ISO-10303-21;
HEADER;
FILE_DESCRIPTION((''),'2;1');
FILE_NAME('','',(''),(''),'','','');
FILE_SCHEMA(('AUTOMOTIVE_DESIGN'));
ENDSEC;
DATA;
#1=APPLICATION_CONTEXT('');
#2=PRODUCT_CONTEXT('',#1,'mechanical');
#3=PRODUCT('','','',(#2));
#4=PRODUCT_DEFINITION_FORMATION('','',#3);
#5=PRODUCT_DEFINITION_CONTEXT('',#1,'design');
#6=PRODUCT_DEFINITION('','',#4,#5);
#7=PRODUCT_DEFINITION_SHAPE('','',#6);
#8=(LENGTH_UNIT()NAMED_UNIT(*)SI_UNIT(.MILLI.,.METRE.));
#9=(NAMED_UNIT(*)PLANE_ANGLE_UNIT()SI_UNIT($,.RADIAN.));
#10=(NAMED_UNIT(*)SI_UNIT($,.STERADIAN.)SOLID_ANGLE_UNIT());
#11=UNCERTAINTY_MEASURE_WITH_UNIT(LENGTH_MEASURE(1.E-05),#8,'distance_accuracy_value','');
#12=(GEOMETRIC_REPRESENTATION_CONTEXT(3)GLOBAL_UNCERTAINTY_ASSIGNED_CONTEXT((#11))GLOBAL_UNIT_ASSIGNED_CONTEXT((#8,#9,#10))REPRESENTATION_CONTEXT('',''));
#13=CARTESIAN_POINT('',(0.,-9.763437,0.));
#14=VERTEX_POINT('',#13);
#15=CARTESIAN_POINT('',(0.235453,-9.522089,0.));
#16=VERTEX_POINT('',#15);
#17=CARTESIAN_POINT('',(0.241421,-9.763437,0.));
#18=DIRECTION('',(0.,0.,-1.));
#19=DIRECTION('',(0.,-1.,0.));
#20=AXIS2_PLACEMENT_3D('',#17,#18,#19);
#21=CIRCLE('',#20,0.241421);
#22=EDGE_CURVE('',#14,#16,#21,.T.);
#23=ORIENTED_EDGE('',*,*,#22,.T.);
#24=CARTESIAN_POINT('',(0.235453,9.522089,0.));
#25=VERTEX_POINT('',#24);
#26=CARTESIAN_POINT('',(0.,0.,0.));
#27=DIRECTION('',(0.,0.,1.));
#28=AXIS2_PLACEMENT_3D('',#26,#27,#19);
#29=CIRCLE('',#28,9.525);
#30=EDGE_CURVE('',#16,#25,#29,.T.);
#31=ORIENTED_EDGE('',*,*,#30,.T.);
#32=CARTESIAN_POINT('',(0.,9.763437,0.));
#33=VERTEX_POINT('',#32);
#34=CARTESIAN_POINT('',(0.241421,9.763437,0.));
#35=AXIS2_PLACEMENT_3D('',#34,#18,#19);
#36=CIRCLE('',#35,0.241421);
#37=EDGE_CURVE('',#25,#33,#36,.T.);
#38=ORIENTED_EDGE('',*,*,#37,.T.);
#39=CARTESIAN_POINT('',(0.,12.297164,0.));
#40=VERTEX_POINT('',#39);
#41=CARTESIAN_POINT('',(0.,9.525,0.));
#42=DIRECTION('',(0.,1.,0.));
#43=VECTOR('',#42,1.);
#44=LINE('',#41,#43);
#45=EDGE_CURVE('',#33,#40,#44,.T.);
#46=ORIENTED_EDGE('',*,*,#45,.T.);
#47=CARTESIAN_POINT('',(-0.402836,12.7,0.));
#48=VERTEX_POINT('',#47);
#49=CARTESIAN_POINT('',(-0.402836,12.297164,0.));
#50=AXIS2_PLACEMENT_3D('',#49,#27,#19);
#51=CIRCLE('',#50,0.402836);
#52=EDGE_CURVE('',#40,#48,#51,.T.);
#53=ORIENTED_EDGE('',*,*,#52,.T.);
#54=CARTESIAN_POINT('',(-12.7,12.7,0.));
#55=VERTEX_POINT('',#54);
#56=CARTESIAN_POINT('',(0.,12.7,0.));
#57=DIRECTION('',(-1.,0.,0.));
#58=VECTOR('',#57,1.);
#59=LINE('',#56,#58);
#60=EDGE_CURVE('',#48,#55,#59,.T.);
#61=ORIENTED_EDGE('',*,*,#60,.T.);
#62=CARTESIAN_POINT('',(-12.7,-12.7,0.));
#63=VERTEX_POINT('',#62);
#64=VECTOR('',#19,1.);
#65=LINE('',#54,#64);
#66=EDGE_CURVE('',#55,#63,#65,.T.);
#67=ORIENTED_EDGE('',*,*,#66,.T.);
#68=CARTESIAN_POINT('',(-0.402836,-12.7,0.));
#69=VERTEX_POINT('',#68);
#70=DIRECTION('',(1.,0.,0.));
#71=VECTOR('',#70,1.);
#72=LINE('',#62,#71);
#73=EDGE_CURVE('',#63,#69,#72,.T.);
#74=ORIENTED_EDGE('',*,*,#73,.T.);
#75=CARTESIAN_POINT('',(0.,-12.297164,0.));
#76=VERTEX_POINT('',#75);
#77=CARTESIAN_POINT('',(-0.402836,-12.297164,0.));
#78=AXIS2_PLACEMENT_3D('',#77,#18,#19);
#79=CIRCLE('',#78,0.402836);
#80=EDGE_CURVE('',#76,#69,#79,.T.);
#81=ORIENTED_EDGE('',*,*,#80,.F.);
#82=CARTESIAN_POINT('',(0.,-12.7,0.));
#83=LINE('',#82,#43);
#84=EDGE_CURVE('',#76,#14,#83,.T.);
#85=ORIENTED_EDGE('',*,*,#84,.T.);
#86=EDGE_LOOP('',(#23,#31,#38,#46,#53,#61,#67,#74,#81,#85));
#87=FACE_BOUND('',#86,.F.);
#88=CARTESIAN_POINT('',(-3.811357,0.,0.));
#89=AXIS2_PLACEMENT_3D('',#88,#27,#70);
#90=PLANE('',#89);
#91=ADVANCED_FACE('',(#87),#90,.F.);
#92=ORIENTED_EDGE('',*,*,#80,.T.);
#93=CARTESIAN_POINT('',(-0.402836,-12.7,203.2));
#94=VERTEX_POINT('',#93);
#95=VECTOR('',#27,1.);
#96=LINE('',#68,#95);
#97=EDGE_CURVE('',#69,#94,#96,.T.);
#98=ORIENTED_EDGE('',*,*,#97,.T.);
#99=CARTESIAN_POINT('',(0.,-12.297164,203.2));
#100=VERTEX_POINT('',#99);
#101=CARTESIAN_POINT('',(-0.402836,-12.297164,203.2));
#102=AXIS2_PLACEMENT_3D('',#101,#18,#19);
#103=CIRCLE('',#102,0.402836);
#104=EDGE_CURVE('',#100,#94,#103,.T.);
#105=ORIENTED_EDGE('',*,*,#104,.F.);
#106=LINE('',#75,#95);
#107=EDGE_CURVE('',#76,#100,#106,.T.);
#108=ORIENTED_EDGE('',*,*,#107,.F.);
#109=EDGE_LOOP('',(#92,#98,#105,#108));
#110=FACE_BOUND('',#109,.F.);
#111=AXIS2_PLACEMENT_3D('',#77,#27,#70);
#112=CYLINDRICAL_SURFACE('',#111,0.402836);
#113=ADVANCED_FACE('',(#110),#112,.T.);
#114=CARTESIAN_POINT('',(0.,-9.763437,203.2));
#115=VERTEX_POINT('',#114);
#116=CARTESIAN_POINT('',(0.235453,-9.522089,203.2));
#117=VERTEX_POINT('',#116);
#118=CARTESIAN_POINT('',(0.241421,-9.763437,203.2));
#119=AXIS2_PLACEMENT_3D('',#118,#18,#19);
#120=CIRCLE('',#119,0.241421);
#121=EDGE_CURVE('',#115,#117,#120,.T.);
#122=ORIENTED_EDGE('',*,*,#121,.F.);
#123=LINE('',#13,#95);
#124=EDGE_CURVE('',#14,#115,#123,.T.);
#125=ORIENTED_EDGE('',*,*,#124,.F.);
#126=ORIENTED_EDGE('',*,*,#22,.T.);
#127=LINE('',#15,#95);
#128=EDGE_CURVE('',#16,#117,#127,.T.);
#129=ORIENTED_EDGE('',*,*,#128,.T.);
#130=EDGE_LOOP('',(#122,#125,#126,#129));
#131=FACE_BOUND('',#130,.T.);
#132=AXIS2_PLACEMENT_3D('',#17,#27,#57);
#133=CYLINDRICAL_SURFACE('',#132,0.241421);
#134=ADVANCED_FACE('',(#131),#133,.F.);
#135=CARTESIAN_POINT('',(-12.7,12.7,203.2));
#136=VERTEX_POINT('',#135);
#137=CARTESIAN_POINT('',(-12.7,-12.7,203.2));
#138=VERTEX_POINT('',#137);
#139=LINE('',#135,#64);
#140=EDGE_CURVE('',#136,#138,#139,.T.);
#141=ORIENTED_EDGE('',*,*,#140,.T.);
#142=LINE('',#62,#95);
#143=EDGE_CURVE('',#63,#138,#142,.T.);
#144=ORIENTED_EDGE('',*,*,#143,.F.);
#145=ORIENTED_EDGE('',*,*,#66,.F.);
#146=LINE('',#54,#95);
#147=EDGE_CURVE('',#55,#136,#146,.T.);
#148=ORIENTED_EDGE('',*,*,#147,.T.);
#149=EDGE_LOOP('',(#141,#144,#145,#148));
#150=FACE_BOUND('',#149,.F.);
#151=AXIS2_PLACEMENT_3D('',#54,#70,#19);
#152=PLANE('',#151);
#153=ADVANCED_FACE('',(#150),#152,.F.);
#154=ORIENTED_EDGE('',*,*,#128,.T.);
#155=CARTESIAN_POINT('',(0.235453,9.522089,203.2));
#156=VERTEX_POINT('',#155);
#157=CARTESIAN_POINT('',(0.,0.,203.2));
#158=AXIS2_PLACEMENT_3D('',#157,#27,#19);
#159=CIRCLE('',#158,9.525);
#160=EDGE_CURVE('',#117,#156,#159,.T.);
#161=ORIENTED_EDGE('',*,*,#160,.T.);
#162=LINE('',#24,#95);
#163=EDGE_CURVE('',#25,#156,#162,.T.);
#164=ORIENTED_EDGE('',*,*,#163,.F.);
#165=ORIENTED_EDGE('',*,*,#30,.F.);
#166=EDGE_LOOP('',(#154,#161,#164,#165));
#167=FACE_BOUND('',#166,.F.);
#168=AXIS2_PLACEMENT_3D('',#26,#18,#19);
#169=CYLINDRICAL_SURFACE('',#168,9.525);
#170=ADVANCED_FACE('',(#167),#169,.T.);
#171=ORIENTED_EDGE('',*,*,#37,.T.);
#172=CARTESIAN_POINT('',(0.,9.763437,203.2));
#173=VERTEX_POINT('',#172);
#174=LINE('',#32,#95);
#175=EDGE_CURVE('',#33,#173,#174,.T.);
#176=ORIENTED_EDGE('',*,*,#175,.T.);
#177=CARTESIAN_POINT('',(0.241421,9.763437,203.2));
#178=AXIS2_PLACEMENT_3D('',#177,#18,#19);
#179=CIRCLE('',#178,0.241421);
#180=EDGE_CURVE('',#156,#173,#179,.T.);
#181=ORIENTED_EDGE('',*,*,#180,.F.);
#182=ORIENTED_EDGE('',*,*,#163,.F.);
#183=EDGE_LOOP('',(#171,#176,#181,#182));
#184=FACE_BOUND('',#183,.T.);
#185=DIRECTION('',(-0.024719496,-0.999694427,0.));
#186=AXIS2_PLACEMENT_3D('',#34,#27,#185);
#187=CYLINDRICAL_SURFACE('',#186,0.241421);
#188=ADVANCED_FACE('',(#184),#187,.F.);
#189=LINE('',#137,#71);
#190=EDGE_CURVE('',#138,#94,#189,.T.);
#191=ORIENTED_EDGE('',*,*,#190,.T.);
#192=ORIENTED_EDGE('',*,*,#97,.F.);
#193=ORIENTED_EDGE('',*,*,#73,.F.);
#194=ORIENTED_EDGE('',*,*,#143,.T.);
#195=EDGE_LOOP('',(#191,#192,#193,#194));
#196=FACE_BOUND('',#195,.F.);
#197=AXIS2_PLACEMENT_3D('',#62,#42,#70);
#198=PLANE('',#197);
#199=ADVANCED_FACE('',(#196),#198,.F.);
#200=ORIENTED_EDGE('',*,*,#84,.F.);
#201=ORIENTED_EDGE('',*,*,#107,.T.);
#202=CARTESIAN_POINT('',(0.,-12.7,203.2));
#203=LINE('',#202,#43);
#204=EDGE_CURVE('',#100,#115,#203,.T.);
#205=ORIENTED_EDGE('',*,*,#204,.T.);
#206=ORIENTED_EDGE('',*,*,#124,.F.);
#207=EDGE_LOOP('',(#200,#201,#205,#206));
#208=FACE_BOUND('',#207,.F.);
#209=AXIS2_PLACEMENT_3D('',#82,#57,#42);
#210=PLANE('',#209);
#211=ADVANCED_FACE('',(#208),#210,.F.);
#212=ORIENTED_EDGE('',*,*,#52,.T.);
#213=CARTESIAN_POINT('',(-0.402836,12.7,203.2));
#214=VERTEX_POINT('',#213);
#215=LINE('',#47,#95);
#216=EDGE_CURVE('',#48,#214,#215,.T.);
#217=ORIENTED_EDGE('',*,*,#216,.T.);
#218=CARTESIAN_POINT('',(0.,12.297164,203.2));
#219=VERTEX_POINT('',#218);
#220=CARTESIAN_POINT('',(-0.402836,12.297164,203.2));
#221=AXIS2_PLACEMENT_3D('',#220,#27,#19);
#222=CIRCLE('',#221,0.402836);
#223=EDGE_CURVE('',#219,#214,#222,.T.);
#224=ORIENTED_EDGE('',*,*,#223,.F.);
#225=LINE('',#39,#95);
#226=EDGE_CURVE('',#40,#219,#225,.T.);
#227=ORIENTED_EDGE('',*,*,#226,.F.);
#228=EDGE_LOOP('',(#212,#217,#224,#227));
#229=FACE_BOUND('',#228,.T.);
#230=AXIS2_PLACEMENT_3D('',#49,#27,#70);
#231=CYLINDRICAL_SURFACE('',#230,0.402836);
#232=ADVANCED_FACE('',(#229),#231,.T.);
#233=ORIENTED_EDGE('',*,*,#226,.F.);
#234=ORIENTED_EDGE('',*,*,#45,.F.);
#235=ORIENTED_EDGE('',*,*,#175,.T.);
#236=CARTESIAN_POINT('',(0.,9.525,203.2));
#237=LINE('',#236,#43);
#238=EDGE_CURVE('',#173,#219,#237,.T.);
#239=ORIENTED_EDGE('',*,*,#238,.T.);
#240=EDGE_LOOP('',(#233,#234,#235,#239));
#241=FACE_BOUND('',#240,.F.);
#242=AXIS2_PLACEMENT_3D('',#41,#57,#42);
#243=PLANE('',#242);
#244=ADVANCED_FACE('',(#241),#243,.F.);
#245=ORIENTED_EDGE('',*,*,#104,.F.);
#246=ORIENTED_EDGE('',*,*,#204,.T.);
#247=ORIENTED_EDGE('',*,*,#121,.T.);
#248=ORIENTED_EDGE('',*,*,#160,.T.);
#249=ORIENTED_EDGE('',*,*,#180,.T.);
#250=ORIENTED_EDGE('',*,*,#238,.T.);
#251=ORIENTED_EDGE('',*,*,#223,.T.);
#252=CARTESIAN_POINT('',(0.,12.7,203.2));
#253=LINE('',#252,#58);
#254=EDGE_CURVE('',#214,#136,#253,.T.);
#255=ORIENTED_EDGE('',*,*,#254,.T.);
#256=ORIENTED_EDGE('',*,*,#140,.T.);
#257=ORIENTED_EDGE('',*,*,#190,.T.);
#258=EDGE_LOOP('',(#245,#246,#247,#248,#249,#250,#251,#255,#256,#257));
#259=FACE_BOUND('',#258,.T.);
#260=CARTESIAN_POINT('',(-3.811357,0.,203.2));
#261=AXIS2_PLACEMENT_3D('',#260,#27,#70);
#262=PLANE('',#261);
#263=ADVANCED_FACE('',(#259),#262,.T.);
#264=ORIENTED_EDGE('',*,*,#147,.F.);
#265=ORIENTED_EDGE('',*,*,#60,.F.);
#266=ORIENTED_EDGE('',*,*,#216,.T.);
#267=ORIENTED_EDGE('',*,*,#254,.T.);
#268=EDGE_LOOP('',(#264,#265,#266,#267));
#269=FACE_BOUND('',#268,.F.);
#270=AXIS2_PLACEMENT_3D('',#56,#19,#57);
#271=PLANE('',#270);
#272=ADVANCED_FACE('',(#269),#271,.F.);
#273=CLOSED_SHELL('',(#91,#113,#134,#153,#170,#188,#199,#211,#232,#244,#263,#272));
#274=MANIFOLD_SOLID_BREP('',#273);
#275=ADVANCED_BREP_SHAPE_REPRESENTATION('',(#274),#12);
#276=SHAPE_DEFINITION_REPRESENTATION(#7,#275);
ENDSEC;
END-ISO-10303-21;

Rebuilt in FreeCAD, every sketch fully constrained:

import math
import FreeCAD as App
import Part
import Sketcher
from FreeCAD import Vector
Q = App.Units.Quantity


def edges_at(feature, points):
    """Names of the edges that pass closest to the given points."""
    edges = feature.Shape.Edges
    near = lambda p: min(range(len(edges)), key=lambda i: edges[i].distToShape(Part.Vertex(*p))[0])
    return sorted({f"Edge{near(p) + 1}" for p in points})

doc = App.newDocument("Part")
params = doc.addObject("Spreadsheet::Sheet", "Params")
for row, (alias, value) in enumerate([
    ("sketch1_height", "1 in"),
    ("sketch1_width", "0.5 in"),
    ("sketch1_radius", "0.375 in"),
    ("pad1_length", "8 in"),
    ("fillet_radius", "0.402836 mm"),
    ("fillet2_radius", "0.241421 mm"),
], start=1):
    params.set(f"A{row}", alias)
    params.set(f"B{row}", "=" + value)
    params.setAlias(f"B{row}", alias)

body = doc.addObject("PartDesign::Body", "Body")

# Sketch on XY plane
sketch1 = doc.addObject("Sketcher::SketchObject", "Sketch")
body.addObject(sketch1)
sketch1.AttachmentSupport = (doc.XY_Plane, [""])
sketch1.MapMode = "FlatFace"
sketch1.addGeometry(Part.LineSegment(Vector(0, -12.7, 0), Vector(0, -9.5, 0)), False)
sketch1.addGeometry(Part.ArcOfCircle(Part.Circle(Vector(0, 0, 0), Vector(0, 0, 1), 9.5), math.radians(-90), math.radians(90)), False)
sketch1.addGeometry(Part.LineSegment(Vector(0, 9.5, 0), Vector(0, 12.7, 0)), False)
sketch1.addGeometry(Part.LineSegment(Vector(0, 12.7, 0), Vector(-12.7, 12.7, 0)), False)
sketch1.addGeometry(Part.LineSegment(Vector(-12.7, 12.7, 0), Vector(-12.7, -12.7, 0)), False)
sketch1.addGeometry(Part.LineSegment(Vector(-12.7, -12.7, 0), Vector(0, -12.7, 0)), False)
sketch1.addConstraint(Sketcher.Constraint("Coincident", 0, 2, 1, 1))
sketch1.addConstraint(Sketcher.Constraint("Coincident", 1, 2, 2, 1))
sketch1.addConstraint(Sketcher.Constraint("Coincident", 2, 2, 3, 1))
sketch1.addConstraint(Sketcher.Constraint("Coincident", 3, 2, 4, 1))
sketch1.addConstraint(Sketcher.Constraint("Coincident", 4, 2, 5, 1))
sketch1.addConstraint(Sketcher.Constraint("Coincident", 5, 2, 0, 1))
sketch1.addConstraint(Sketcher.Constraint("Vertical", 0))
sketch1.addConstraint(Sketcher.Constraint("Vertical", 2))
sketch1.addConstraint(Sketcher.Constraint("Horizontal", 3))
sketch1.addConstraint(Sketcher.Constraint("Vertical", 4))
sketch1.addConstraint(Sketcher.Constraint("Horizontal", 5))
sketch1.addConstraint(Sketcher.Constraint("Coincident", 1, 3, -1, 1))
sketch1.addConstraint(Sketcher.Constraint("Symmetric", 2, 2, 5, 2, -1, 1))
sketch1.addConstraint(Sketcher.Constraint("PointOnObject", 0, 2, -2))
sketch1.addConstraint(Sketcher.Constraint("DistanceY", 4, 2, 4, 1, Q("1 in")))
sketch1.addConstraint(Sketcher.Constraint("DistanceX", 3, 2, 3, 1, Q("0.5 in")))
sketch1.addConstraint(Sketcher.Constraint("Radius", 1, Q("0.375 in")))
sketch1.setExpression("Constraints[14]", "Params.sketch1_height")
sketch1.setExpression("Constraints[15]", "Params.sketch1_width")
sketch1.setExpression("Constraints[16]", "Params.sketch1_radius")
pad1 = doc.addObject("PartDesign::Pad", "Pad")
body.addObject(pad1)
pad1.Profile = sketch1
pad1.setExpression("Length", "Params.pad1_length")
doc.recompute()

fillet = doc.addObject("PartDesign::Fillet", "Fillet")
body.addObject(fillet)
fillet.Base = (pad1, edges_at(pad1, [(0, 12.7, 101.6), (0, -12.7, 101.6)]))
fillet.setExpression("Radius", "Params.fillet_radius")
doc.recompute()

fillet2 = doc.addObject("PartDesign::Fillet", "Fillet001")
body.addObject(fillet2)
fillet2.Base = (fillet, edges_at(fillet, [(0, 9.525, 101.6), (0, -9.525, 101.6)]))
fillet2.setExpression("Radius", "Params.fillet2_radius")

doc.recompute()
